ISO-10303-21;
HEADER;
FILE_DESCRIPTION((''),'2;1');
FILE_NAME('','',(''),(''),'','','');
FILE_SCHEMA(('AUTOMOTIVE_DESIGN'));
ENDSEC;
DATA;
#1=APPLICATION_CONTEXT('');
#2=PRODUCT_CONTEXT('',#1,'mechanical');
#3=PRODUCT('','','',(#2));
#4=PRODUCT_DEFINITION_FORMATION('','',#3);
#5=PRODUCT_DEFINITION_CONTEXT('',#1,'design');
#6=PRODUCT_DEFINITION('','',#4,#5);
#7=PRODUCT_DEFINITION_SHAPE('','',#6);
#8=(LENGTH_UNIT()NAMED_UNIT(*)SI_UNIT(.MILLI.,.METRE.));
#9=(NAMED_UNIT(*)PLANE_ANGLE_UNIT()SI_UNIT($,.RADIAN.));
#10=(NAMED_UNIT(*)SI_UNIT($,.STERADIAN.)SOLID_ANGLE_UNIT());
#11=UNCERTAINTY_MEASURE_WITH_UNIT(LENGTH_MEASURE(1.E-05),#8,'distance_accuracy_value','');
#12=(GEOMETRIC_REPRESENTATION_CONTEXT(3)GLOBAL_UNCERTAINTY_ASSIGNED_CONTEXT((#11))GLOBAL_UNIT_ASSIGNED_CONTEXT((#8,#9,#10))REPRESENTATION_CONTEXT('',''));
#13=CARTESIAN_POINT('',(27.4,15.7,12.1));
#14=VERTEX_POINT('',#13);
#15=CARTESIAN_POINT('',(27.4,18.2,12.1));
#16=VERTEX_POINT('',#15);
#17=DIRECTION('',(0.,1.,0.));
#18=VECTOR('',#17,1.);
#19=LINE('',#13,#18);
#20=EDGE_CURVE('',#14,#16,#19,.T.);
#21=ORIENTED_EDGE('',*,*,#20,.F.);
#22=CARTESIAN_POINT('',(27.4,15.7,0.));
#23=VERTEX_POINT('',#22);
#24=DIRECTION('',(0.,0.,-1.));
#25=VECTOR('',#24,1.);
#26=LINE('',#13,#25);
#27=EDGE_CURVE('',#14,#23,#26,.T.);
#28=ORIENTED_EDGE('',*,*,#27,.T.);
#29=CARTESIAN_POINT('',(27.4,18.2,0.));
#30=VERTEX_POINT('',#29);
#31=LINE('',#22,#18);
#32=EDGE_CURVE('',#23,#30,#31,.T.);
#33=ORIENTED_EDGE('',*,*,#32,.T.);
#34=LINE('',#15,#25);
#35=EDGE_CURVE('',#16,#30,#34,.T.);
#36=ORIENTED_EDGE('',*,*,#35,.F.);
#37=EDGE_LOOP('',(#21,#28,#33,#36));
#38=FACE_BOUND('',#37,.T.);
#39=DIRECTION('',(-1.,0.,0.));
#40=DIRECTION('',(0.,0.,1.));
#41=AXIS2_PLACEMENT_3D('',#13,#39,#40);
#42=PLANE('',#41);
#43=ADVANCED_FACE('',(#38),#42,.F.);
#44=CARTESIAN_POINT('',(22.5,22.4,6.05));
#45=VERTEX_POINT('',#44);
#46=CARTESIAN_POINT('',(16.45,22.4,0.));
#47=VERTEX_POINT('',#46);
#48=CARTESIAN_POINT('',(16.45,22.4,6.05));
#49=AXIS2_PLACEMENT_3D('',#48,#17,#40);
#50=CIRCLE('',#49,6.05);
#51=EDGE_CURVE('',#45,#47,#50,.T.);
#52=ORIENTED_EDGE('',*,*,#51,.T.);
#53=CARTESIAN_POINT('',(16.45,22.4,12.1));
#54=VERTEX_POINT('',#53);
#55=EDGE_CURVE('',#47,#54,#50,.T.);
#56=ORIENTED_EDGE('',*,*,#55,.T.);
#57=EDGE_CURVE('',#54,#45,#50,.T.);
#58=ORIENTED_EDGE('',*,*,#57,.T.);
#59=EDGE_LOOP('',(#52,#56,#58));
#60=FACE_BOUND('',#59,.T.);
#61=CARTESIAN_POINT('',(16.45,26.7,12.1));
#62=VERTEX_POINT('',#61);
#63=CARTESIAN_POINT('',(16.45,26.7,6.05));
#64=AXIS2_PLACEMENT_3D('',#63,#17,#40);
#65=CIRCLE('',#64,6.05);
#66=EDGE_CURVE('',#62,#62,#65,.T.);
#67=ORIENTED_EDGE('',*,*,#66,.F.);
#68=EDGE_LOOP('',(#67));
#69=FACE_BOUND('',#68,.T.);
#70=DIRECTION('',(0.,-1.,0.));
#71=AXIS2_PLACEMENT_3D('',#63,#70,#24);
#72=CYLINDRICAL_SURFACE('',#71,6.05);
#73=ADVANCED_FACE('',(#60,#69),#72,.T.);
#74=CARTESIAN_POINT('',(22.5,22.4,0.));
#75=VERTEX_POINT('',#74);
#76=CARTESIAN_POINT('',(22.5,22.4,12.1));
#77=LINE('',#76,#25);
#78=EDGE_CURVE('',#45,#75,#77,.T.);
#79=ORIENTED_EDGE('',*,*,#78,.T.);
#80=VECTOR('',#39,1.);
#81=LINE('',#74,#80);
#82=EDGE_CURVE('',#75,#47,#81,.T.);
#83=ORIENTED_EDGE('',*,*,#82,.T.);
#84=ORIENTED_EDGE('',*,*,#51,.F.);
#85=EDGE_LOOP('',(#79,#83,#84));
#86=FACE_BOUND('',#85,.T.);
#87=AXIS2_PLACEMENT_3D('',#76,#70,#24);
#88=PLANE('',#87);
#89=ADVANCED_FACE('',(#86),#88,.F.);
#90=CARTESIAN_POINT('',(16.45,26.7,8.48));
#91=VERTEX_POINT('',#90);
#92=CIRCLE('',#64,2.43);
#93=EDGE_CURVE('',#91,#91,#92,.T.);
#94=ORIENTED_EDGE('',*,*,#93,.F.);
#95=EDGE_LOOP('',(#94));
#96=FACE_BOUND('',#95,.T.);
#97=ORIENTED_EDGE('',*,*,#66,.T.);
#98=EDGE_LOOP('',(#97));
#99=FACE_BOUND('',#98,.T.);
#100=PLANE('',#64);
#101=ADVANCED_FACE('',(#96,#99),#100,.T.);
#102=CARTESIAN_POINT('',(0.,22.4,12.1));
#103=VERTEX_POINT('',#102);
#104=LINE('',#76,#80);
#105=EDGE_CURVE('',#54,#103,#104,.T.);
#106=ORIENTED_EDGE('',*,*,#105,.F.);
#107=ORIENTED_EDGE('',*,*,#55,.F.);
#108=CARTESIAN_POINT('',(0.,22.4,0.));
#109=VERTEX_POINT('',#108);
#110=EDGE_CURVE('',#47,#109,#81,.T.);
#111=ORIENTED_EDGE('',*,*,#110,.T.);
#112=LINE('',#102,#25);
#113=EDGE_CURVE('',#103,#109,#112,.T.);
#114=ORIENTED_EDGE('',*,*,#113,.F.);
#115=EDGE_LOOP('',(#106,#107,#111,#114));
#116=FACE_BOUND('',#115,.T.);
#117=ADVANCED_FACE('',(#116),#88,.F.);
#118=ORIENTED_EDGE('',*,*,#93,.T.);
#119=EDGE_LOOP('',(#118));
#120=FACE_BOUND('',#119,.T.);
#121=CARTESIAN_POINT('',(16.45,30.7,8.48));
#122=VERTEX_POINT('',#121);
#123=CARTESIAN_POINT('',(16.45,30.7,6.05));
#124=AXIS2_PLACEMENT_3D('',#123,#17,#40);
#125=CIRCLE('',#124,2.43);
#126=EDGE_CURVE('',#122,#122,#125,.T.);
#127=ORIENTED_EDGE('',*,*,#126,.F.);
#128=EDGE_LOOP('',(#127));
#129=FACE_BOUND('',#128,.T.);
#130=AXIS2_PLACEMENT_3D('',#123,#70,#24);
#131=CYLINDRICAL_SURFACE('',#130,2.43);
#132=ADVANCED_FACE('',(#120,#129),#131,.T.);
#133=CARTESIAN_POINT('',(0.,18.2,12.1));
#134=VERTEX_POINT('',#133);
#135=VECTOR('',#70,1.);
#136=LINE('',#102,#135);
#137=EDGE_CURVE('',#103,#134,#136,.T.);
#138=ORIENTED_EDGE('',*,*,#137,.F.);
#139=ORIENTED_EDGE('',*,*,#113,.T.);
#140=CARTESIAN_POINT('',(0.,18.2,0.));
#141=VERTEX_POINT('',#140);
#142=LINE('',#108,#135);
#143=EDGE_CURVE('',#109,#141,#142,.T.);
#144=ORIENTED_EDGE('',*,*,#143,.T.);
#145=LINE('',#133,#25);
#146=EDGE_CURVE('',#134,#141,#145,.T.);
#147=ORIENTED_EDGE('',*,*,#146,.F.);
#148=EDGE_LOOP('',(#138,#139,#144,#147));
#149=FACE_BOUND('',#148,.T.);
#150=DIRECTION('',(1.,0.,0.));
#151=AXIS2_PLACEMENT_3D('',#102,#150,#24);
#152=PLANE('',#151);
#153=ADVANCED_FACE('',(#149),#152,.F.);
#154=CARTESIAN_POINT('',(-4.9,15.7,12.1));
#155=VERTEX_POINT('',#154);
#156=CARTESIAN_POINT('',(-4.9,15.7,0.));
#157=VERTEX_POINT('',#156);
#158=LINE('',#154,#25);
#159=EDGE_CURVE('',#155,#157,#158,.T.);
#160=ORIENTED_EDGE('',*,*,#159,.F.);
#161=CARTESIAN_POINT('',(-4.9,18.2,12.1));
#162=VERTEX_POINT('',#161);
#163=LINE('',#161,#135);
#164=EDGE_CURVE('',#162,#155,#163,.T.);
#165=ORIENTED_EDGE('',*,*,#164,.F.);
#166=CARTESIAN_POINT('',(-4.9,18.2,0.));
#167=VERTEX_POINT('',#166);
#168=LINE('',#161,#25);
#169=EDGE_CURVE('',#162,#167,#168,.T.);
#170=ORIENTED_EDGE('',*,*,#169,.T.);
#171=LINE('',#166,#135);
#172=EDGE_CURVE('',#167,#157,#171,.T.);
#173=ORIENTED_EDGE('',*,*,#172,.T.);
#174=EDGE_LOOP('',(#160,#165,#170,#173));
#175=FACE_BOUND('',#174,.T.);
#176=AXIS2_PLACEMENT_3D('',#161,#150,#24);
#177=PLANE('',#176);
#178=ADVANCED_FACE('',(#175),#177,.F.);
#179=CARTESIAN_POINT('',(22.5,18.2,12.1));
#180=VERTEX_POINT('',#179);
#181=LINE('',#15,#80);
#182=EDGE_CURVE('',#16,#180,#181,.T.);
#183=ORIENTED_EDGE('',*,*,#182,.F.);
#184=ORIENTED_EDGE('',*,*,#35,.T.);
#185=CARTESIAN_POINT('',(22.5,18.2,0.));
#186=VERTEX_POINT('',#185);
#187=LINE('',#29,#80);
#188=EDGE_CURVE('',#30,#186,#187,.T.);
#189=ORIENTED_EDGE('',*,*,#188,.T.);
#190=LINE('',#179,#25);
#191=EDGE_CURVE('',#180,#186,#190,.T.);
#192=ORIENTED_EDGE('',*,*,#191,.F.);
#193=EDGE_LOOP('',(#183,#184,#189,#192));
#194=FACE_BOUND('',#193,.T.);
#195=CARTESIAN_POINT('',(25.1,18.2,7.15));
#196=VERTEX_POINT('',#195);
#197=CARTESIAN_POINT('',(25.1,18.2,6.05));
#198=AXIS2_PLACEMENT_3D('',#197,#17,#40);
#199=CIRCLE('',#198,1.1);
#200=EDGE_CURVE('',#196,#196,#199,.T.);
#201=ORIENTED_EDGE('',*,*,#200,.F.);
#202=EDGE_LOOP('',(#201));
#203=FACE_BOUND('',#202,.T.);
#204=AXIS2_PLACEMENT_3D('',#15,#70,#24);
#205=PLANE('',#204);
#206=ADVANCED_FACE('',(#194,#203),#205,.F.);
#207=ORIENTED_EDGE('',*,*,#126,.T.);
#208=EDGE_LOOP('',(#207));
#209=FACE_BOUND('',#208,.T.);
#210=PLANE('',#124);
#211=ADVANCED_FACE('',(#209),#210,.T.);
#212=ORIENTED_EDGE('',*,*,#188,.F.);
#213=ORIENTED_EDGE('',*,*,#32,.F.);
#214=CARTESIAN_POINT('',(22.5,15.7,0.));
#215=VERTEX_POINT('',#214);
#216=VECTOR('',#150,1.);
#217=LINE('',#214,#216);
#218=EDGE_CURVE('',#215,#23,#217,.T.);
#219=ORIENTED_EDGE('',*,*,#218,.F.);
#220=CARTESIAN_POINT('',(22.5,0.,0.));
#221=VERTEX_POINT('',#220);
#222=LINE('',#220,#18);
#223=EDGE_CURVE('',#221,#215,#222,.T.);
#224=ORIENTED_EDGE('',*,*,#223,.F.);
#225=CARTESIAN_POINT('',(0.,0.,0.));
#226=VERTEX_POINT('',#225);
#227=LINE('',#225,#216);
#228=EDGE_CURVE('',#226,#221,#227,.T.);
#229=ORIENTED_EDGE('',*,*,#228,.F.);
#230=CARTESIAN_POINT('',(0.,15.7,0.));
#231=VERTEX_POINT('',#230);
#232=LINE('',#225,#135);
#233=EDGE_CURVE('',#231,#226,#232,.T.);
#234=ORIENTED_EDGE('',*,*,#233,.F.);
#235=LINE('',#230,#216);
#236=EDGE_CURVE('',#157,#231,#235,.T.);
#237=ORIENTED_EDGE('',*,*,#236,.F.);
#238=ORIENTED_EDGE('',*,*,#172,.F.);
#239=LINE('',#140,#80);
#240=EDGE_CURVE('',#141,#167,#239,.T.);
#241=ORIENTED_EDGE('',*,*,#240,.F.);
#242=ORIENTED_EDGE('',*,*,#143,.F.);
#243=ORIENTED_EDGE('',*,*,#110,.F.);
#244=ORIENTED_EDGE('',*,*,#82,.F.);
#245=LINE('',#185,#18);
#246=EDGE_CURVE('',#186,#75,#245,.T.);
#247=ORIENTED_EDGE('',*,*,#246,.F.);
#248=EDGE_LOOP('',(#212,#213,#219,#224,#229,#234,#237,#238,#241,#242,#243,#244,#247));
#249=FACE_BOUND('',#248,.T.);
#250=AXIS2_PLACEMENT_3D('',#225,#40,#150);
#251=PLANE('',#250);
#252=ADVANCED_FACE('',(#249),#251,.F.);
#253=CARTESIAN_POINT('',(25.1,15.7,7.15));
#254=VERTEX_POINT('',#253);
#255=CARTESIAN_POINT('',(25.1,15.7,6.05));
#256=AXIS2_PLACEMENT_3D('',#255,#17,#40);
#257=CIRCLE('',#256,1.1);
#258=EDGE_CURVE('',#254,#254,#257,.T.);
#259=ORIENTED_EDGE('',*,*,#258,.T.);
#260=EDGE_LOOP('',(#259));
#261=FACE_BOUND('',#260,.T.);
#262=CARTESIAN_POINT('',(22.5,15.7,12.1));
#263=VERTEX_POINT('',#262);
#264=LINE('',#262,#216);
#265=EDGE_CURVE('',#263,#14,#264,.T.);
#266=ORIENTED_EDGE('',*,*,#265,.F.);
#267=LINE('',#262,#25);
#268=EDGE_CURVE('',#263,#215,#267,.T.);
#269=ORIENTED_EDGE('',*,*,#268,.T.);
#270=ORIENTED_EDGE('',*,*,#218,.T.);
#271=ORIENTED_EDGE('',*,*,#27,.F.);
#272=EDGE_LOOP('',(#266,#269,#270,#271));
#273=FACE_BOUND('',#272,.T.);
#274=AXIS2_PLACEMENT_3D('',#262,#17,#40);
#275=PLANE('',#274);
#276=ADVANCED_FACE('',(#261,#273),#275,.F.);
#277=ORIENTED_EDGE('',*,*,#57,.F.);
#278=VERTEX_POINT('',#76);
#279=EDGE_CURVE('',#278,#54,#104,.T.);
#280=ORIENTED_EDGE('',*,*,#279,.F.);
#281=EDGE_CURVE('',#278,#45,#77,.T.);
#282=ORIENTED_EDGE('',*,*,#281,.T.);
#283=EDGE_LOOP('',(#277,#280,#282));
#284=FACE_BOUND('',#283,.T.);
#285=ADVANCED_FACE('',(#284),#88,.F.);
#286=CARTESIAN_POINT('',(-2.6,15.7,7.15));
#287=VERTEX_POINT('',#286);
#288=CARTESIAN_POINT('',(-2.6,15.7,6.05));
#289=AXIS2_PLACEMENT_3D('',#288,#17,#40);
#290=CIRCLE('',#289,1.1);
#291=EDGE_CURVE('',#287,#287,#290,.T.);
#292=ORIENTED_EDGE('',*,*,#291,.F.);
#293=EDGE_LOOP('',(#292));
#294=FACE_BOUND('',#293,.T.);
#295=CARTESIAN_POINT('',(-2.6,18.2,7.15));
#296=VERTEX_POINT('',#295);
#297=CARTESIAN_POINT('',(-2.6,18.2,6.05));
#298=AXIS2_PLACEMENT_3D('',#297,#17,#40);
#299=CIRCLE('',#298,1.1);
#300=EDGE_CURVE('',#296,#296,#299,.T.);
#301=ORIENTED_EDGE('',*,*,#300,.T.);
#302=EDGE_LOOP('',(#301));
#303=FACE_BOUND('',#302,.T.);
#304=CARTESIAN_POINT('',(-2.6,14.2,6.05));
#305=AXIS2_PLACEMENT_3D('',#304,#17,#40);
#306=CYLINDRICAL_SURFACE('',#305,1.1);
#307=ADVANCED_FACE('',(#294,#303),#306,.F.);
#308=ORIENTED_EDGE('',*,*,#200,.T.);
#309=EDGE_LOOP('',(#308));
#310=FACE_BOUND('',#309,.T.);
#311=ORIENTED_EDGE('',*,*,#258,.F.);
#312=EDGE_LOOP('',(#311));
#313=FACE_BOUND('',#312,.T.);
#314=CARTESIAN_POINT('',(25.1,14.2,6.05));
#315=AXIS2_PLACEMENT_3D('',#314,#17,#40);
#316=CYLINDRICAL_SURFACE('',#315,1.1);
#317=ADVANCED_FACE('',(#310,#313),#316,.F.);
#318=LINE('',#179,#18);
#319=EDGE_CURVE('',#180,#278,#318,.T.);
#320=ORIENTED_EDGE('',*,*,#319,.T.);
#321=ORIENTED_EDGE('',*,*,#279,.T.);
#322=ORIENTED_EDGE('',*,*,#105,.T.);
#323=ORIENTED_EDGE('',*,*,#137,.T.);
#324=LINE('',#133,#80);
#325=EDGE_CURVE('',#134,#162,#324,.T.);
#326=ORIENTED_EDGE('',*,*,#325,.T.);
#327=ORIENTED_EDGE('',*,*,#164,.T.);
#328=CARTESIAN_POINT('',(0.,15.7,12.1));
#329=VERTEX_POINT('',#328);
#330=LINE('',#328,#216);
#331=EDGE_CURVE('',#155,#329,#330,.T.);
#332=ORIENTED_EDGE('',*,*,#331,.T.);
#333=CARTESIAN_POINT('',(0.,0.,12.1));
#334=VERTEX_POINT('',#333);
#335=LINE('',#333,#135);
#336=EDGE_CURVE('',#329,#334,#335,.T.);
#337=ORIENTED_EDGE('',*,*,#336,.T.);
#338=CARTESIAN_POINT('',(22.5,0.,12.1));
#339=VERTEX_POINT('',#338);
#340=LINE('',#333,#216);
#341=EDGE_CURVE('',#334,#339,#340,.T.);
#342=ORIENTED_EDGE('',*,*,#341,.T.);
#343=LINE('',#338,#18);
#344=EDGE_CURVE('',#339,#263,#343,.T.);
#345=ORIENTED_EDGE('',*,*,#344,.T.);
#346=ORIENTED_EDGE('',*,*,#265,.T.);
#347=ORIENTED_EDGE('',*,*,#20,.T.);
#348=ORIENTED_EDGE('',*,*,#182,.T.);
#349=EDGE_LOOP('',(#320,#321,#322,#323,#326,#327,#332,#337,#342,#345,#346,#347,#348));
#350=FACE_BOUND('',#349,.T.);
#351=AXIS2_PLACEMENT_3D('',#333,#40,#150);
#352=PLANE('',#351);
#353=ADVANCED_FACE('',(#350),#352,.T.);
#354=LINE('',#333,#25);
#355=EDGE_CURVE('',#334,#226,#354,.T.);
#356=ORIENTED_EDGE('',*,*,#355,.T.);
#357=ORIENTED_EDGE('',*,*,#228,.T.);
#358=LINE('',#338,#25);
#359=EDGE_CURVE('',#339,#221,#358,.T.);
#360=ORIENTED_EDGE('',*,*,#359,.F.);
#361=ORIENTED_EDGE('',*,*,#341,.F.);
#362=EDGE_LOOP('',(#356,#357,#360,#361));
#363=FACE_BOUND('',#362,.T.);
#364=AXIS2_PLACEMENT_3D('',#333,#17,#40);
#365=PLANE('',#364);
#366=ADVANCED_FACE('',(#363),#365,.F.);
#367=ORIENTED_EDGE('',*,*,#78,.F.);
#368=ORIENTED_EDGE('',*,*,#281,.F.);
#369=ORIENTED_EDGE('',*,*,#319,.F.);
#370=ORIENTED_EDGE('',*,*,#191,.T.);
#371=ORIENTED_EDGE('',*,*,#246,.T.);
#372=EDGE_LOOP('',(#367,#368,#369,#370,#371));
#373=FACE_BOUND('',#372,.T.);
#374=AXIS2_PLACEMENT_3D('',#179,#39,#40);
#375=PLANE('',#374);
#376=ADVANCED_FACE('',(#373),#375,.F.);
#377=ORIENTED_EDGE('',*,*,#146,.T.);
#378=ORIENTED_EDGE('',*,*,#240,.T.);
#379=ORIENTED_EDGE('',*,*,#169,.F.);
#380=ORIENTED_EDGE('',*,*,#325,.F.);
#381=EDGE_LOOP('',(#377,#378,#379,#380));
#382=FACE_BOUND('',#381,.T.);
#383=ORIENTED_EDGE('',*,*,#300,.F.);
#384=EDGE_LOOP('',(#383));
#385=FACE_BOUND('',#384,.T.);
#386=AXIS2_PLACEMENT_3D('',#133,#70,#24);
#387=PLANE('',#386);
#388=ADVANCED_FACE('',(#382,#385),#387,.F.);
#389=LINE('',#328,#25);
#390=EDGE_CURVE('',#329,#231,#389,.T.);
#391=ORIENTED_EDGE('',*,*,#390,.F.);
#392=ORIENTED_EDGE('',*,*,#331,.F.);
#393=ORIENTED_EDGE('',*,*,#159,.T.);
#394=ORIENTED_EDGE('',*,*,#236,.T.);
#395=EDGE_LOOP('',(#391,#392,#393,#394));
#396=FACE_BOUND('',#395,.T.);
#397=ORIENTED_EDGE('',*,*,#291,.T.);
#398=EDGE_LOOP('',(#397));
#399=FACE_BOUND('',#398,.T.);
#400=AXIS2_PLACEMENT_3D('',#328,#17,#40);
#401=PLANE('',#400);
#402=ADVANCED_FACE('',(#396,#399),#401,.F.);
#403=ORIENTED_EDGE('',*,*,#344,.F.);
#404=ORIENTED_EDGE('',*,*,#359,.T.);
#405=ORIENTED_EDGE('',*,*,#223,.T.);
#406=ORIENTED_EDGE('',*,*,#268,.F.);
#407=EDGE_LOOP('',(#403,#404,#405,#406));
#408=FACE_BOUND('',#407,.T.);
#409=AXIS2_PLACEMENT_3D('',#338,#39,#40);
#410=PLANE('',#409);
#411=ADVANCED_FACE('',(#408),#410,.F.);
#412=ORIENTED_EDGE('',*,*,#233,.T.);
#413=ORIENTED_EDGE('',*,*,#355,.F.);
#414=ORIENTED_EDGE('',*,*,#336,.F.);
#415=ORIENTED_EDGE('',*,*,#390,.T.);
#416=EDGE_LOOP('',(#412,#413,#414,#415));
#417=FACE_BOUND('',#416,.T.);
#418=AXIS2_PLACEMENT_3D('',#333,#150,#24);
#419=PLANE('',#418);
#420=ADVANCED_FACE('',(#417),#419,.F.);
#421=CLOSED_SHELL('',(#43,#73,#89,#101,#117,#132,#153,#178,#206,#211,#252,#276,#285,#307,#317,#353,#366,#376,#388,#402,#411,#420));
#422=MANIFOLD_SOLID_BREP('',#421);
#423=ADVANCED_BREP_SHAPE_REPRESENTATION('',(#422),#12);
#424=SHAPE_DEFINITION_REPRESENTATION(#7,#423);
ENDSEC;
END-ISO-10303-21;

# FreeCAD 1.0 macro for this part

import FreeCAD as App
import Part
import Sketcher

V = App.Vector

doc = App.newDocument("Part")
body = doc.addObject("PartDesign::Body", "Body")

# Sketch on XY plane
sketch1 = body.newObject("Sketcher::SketchObject", "Sketch")
sketch1.AttachmentSupport = (doc.getObject("XY_Plane"), [""])
sketch1.MapMode = "FlatFace"
sketch1.addGeometry(Part.LineSegment(V(0, 0, 0), V(22.5, 0, 0)), False)
sketch1.addGeometry(Part.LineSegment(V(22.5, 0, 0), V(22.5, 15.7, 0)), False)
sketch1.addGeometry(Part.LineSegment(V(22.5, 15.7, 0), V(27.4, 15.7, 0)), False)
sketch1.addGeometry(Part.LineSegment(V(27.4, 15.7, 0), V(27.4, 18.2, 0)), False)
sketch1.addGeometry(Part.LineSegment(V(27.4, 18.2, 0), V(22.5, 18.2, 0)), False)
sketch1.addGeometry(Part.LineSegment(V(22.5, 18.2, 0), V(22.5, 22.4, 0)), False)
sketch1.addGeometry(Part.LineSegment(V(22.5, 22.4, 0), V(0, 22.4, 0)), False)
sketch1.addGeometry(Part.LineSegment(V(0, 22.4, 0), V(0, 18.2, 0)), False)
sketch1.addGeometry(Part.LineSegment(V(0, 18.2, 0), V(-4.9, 18.2, 0)), False)
sketch1.addGeometry(Part.LineSegment(V(-4.9, 18.2, 0), V(-4.9, 15.7, 0)), False)
sketch1.addGeometry(Part.LineSegment(V(-4.9, 15.7, 0), V(0, 15.7, 0)), False)
sketch1.addGeometry(Part.LineSegment(V(0, 15.7, 0), V(0, 0, 0)), False)
sketch1.addConstraint(Sketcher.Constraint("Coincident", 0, 2, 1, 1))
sketch1.addConstraint(Sketcher.Constraint("Coincident", 1, 2, 2, 1))
sketch1.addConstraint(Sketcher.Constraint("Coincident", 2, 2, 3, 1))
sketch1.addConstraint(Sketcher.Constraint("Coincident", 3, 2, 4, 1))
sketch1.addConstraint(Sketcher.Constraint("Coincident", 4, 2, 5, 1))
sketch1.addConstraint(Sketcher.Constraint("Coincident", 5, 2, 6, 1))
sketch1.addConstraint(Sketcher.Constraint("Coincident", 6, 2, 7, 1))
sketch1.addConstraint(Sketcher.Constraint("Coincident", 7, 2, 8, 1))
sketch1.addConstraint(Sketcher.Constraint("Coincident", 8, 2, 9, 1))
sketch1.addConstraint(Sketcher.Constraint("Coincident", 9, 2, 10, 1))
sketch1.addConstraint(Sketcher.Constraint("Coincident", 10, 2, 11, 1))
sketch1.addConstraint(Sketcher.Constraint("Coincident", 11, 2, 0, 1))
sketch1.addConstraint(Sketcher.Constraint("Horizontal", 0))
sketch1.addConstraint(Sketcher.Constraint("Vertical", 1))
sketch1.addConstraint(Sketcher.Constraint("Horizontal", 2))
sketch1.addConstraint(Sketcher.Constraint("Vertical", 3))
sketch1.addConstraint(Sketcher.Constraint("Horizontal", 4))
sketch1.addConstraint(Sketcher.Constraint("Vertical", 5))
sketch1.addConstraint(Sketcher.Constraint("Horizontal", 6))
sketch1.addConstraint(Sketcher.Constraint("Vertical", 7))
sketch1.addConstraint(Sketcher.Constraint("Horizontal", 8))
sketch1.addConstraint(Sketcher.Constraint("Vertical", 9))
sketch1.addConstraint(Sketcher.Constraint("Horizontal", 10))
sketch1.addConstraint(Sketcher.Constraint("Vertical", 11))
sketch1.addConstraint(Sketcher.Constraint("Coincident", 11, 2, -1, 1))
sketch1.addConstraint(Sketcher.Constraint("PointOnObject", 6, 2, -2))
sketch1.addConstraint(Sketcher.Constraint("Horizontal", 4, 2, 7, 2))
sketch1.addConstraint(Sketcher.Constraint("Horizontal", 2, 2, 9, 2))
sketch1.addConstraint(Sketcher.Constraint("Vertical", 1, 2, 4, 2))
sketch1.addConstraint(Sketcher.Constraint("Equal", 4, 8))
sketch1.addConstraint(Sketcher.Constraint("DistanceX", 0, 1, 0, 2, 22.5))
sketch1.addConstraint(Sketcher.Constraint("DistanceX", 2, 1, 2, 2, 4.9))
sketch1.addConstraint(Sketcher.Constraint("DistanceY", 1, 1, 1, 2, 15.7))
sketch1.addConstraint(Sketcher.Constraint("DistanceY", 3, 1, 3, 2, 2.5))
sketch1.addConstraint(Sketcher.Constraint("DistanceY", 5, 1, 5, 2, 4.2))
pad1 = body.newObject("PartDesign::Pad", "Pad")
pad1.Profile = sketch1
pad1.Length = 12.1

# Sketch on XZ plane
sketch2 = body.newObject("Sketcher::SketchObject", "Sketch001")
sketch2.AttachmentSupport = (doc.getObject("XZ_Plane"), [""])
sketch2.MapMode = "FlatFace"
sketch2.AttachmentOffset = App.Placement(V(0, 0, -22.4), App.Rotation())
sketch2.addGeometry(Part.Circle(V(16, 6, 0), V(0, 0, 1), 6), False)
sketch2.addConstraint(Sketcher.Constraint("Diameter", 0, 12.1))
sketch2.addConstraint(Sketcher.Constraint("DistanceX", -1, 1, 0, 3, 16.45))
sketch2.addConstraint(Sketcher.Constraint("DistanceY", -1, 1, 0, 3, 6.05))
pad2 = body.newObject("PartDesign::Pad", "Pad001")
pad2.Profile = sketch2
pad2.Length = 4.3
pad2.Reversed = True

# Sketch on XZ plane
sketch3 = body.newObject("Sketcher::SketchObject", "Sketch002")
sketch3.AttachmentSupport = (doc.getObject("XZ_Plane"), [""])
sketch3.MapMode = "FlatFace"
sketch3.AttachmentOffset = App.Placement(V(0, 0, -26.7), App.Rotation())
sketch3.addGeometry(Part.Circle(V(16.4, 6, 0), V(0, 0, 1), 2.4), False)
sketch3.addConstraint(Sketcher.Constraint("Diameter", 0, 4.86))
sketch3.addConstraint(Sketcher.Constraint("DistanceX", -1, 1, 0, 3, 16.45))
sketch3.addConstraint(Sketcher.Constraint("DistanceY", -1, 1, 0, 3, 6.05))
pad3 = body.newObject("PartDesign::Pad", "Pad002")
pad3.Profile = sketch3
pad3.Length = 4
pad3.Reversed = True

# Sketch on XZ plane
sketch4 = body.newObject("Sketcher::SketchObject", "Sketch003")
sketch4.AttachmentSupport = (doc.getObject("XZ_Plane"), [""])
sketch4.MapMode = "FlatFace"
sketch4.AttachmentOffset = App.Placement(V(0, 0, -18.2), App.Rotation())
sketch4.addGeometry(Part.Circle(V(25.1, 6, 0), V(0, 0, 1), 1.1), False)
sketch4.addGeometry(Part.Circle(V(-2.6, 6, 0), V(0, 0, 1), 1.1), False)
sketch4.addConstraint(Sketcher.Constraint("Equal", 0, 1))
sketch4.addConstraint(Sketcher.Constraint("Horizontal", 0, 3, 1, 3))
sketch4.addConstraint(Sketcher.Constraint("Diameter", 0, 2.2))
sketch4.addConstraint(Sketcher.Constraint("DistanceX", -1, 1, 0, 3, 25.1))
sketch4.addConstraint(Sketcher.Constraint("DistanceX", 1, 3, -1, 1, 2.6))
sketch4.addConstraint(Sketcher.Constraint("DistanceY", -1, 1, 0, 3, 6.05))
pocket1 = body.newObject("PartDesign::Pocket", "Pocket")
pocket1.Profile = sketch4
pocket1.Length = 4
pocket1.Reversed = True

doc.recompute()
